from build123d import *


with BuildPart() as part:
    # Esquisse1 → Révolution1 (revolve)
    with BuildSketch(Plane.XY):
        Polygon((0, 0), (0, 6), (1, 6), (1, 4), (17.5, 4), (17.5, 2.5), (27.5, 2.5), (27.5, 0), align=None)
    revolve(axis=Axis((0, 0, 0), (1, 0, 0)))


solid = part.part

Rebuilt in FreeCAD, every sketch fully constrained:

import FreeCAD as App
import Part
import Sketcher

V = App.Vector
Q = App.Units.Quantity


def add_polygon(sketch, points):
    """Adds a closed chain of lines whose ends are joined by coincident constraints."""
    first, n = sketch.GeometryCount, len(points)
    for a, b in zip(points, points[1:] + points[:1]):
        sketch.addGeometry(Part.LineSegment(App.Vector(*a, 0), App.Vector(*b, 0)), False)
    for i in range(n):
        sketch.addConstraint(Sketcher.Constraint("Coincident", first + i, 2, first + (i + 1) % n, 1))

doc = App.newDocument("Part")
params = doc.addObject("Spreadsheet::Sheet", "Params")
for row, (alias, value) in enumerate([
    ("sketch1_width", "10 mm"),
    ("sketch1_width2", "1 mm"),
    ("sketch1_height", "6 mm"),
    ("sketch1_height2", "2 mm"),
    ("sketch1_width3", "27.5 mm"),
    ("revolution_angle", "360 deg"),
], start=1):
    params.set(f"A{row}", alias)
    params.set(f"B{row}", "=" + value)
    params.setAlias(f"B{row}", alias)

body = doc.addObject("PartDesign::Body", "Body")

# Sketch on XY plane
sketch1 = body.newObject("Sketcher::SketchObject", "Sketch")
sketch1.AttachmentSupport = (doc.getObject("XY_Plane"), [""])
sketch1.MapMode = "FlatFace"
add_polygon(sketch1, [(0, 6), (0, 0), (27.5, 0), (27.5, 2.5), (17.5, 2.5), (17.5, 4), (1, 4), (1, 6)])  # lines 0-7
sketch1.addConstraint([
    Sketcher.Constraint("Vertical", 0),
    Sketcher.Constraint("Horizontal", 1),
    Sketcher.Constraint("Vertical", 2),
    Sketcher.Constraint("Horizontal", 3),
    Sketcher.Constraint("Vertical", 4),
    Sketcher.Constraint("Horizontal", 5),
    Sketcher.Constraint("Vertical", 6),
    Sketcher.Constraint("Horizontal", 7),
    Sketcher.Constraint("Coincident", 0, 2, -1, 1),
    Sketcher.Constraint("DistanceX", 3, 2, 3, 1, Q("10 mm")),
    Sketcher.Constraint("DistanceX", 7, 2, 7, 1, Q("1 mm")),
    Sketcher.Constraint("DistanceY", 0, 2, 0, 1, Q("6 mm")),
    Sketcher.Constraint("DistanceY", 6, 1, 6, 2, Q("2 mm")),
    Sketcher.Constraint("DistanceX", 1, 1, 1, 2, Q("27.5 mm")),
    Sketcher.Constraint("DistanceY", 2, 1, 2, 2, Q("2.5 mm")),
])
sketch1.setExpression("Constraints[17]", "Params.sketch1_width")
sketch1.setExpression("Constraints[18]", "Params.sketch1_width2")
sketch1.setExpression("Constraints[19]", "Params.sketch1_height")
sketch1.setExpression("Constraints[20]", "Params.sketch1_height2")
sketch1.setExpression("Constraints[21]", "Params.sketch1_width3")
revolution = body.newObject("PartDesign::Revolution", "Revolution")
revolution.Profile = sketch1
revolution.ReferenceAxis = (sketch1, ["H_Axis"])
revolution.setExpression("Angle", "Params.revolution_angle")

doc.recompute()
